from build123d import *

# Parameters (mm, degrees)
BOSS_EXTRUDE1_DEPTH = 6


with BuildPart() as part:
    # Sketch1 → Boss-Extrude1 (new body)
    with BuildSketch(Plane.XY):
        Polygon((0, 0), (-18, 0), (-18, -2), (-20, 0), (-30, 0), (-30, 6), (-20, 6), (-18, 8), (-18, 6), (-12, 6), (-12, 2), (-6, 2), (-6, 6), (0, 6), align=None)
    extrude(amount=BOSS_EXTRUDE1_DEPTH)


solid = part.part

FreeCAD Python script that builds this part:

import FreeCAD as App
import Part
import Sketcher
from FreeCAD import Vector
Q = App.Units.Quantity

doc = App.newDocument("Part")
body = doc.addObject("PartDesign::Body", "Body")

# Sketch on XY plane
sketch1 = doc.addObject("Sketcher::SketchObject", "Sketch")
body.addObject(sketch1)
sketch1.AttachmentSupport = (doc.XY_Plane, [""])
sketch1.MapMode = "FlatFace"
sketch1.addGeometry([
    Part.LineSegment(Vector(-18, 0, 0), Vector(0, 0, 0)),  # 0
    Part.LineSegment(Vector(0, 0, 0), Vector(0, 6, 0)),  # 1
    Part.LineSegment(Vector(0, 6, 0), Vector(-6, 6, 0)),  # 2
    Part.LineSegment(Vector(-6, 6, 0), Vector(-6, 2, 0)),  # 3
    Part.LineSegment(Vector(-6, 2, 0), Vector(-12, 2, 0)),  # 4
    Part.LineSegment(Vector(-12, 2, 0), Vector(-12, 6, 0)),  # 5
    Part.LineSegment(Vector(-12, 6, 0), Vector(-18, 6, 0)),  # 6
    Part.LineSegment(Vector(-18, 6, 0), Vector(-18, 8, 0)),  # 7
    Part.LineSegment(Vector(-18, 8, 0), Vector(-20, 6, 0)),  # 8
    Part.LineSegment(Vector(-20, 6, 0), Vector(-30, 6, 0)),  # 9
    Part.LineSegment(Vector(-30, 6, 0), Vector(-30, 0, 0)),  # 10
    Part.LineSegment(Vector(-30, 0, 0), Vector(-20, 0, 0)),  # 11
    Part.LineSegment(Vector(-20, 0, 0), Vector(-18, -2, 0)),  # 12
    Part.LineSegment(Vector(-18, -2, 0), Vector(-18, 0, 0)),  # 13
], False)
sketch1.addConstraint([
    Sketcher.Constraint("Coincident", 0, 2, 1, 1),
    Sketcher.Constraint("Coincident", 1, 2, 2, 1),
    Sketcher.Constraint("Coincident", 2, 2, 3, 1),
    Sketcher.Constraint("Coincident", 3, 2, 4, 1),
    Sketcher.Constraint("Coincident", 4, 2, 5, 1),
    Sketcher.Constraint("Coincident", 5, 2, 6, 1),
    Sketcher.Constraint("Coincident", 6, 2, 7, 1),
    Sketcher.Constraint("Coincident", 7, 2, 8, 1),
    Sketcher.Constraint("Coincident", 8, 2, 9, 1),
    Sketcher.Constraint("Coincident", 9, 2, 10, 1),
    Sketcher.Constraint("Coincident", 10, 2, 11, 1),
    Sketcher.Constraint("Coincident", 11, 2, 12, 1),
    Sketcher.Constraint("Coincident", 12, 2, 13, 1),
    Sketcher.Constraint("Coincident", 13, 2, 0, 1),
    Sketcher.Constraint("Horizontal", 0),
    Sketcher.Constraint("Vertical", 1),
    Sketcher.Constraint("Horizontal", 2),
    Sketcher.Constraint("Vertical", 3),
    Sketcher.Constraint("Horizontal", 4),
    Sketcher.Constraint("Vertical", 5),
    Sketcher.Constraint("Horizontal", 6),
    Sketcher.Constraint("Vertical", 7),
    Sketcher.Constraint("Horizontal", 9),
    Sketcher.Constraint("Vertical", 10),
    Sketcher.Constraint("Horizontal", 11),
    Sketcher.Constraint("Vertical", 13),
    Sketcher.Constraint("Coincident", 0, 2, -1, 1),
    Sketcher.Constraint("PointOnObject", 10, 2, -1),
    Sketcher.Constraint("Perpendicular", 8, 12),
    Sketcher.Constraint("Horizontal", 2, 2, 5, 2),
    Sketcher.Constraint("Horizontal", 6, 2, 8, 2),
    Sketcher.Constraint("Vertical", 8, 2, 11, 2),
    Sketcher.Constraint("Vertical", 7, 2, 12, 2),
    Sketcher.Constraint("Equal", 2, 4),
    Sketcher.Constraint("Equal", 4, 6),
    Sketcher.Constraint("Equal", 6, 1),
    Sketcher.Constraint("Equal", 7, 13),
    Sketcher.Constraint("DistanceX", 0, 1, 0, 2, Q("18 mm")),
    Sketcher.Constraint("DistanceX", 9, 2, 9, 1, Q("10 mm")),
    Sketcher.Constraint("DistanceY", 3, 2, 3, 1, Q("4 mm")),
    Sketcher.Constraint("DistanceY", 7, 1, 7, 2, Q("2 mm")),
])
pad1 = doc.addObject("PartDesign::Pad", "Pad")
body.addObject(pad1)
pad1.Profile = sketch1
pad1.Length = 6

doc.recompute()
